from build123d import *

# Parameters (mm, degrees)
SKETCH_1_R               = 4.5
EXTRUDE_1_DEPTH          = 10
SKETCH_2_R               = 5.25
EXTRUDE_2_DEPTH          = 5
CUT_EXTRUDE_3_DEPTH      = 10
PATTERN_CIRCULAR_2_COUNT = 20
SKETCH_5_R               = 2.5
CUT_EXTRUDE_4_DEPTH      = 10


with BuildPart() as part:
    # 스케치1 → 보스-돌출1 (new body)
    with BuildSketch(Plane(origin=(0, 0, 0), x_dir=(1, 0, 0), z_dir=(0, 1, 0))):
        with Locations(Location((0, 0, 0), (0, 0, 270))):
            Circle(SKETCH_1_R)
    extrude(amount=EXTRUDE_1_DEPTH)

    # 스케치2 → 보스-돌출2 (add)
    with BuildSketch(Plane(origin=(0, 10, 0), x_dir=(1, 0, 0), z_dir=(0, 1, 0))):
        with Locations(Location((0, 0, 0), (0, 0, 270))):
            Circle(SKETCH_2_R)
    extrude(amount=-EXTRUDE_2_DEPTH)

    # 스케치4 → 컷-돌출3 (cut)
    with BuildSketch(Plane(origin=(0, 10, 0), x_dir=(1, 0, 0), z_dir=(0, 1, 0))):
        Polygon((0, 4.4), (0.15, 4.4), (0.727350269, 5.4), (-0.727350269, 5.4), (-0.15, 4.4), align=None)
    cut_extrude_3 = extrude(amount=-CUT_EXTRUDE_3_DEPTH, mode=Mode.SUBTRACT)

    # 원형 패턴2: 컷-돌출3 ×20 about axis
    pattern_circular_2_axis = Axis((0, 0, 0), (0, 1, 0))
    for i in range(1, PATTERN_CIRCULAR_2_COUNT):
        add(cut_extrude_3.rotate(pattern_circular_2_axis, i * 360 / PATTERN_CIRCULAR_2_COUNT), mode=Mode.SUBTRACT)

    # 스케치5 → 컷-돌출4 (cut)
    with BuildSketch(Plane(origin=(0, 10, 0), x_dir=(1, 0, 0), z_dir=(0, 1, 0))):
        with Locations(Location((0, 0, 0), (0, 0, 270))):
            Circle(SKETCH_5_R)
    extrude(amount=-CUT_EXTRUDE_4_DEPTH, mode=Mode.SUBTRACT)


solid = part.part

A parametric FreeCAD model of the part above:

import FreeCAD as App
import Part
import Sketcher

V = App.Vector
Q = App.Units.Quantity


def add_polygon(sketch, points):
    """Adds a closed chain of lines whose ends are joined by coincident constraints."""
    first, n = sketch.GeometryCount, len(points)
    for a, b in zip(points, points[1:] + points[:1]):
        sketch.addGeometry(Part.LineSegment(App.Vector(*a, 0), App.Vector(*b, 0)), False)
    for i in range(n):
        sketch.addConstraint(Sketcher.Constraint("Coincident", first + i, 2, first + (i + 1) % n, 1))

doc = App.newDocument("Part")
body = doc.addObject("PartDesign::Body", "Body")

sketch1 = body.newObject("Sketcher::SketchObject", "Sketch")
sketch1.AttachmentSupport = (doc.getObject("XZ_Plane"), [""])
sketch1.MapMode = "FlatFace"
sketch1.addGeometry(Part.Circle(V(0, 0, 0), V(0, 0, 1), 4.5), False)
sketch1.addConstraint([
    Sketcher.Constraint("Coincident", 0, 3, -1, 1),
    Sketcher.Constraint("Diameter", 0, 9.0),
])
pad1 = body.newObject("PartDesign::Pad", "Pad")
pad1.Profile = sketch1
pad1.Length = 10
pad1.Reversed = True

sketch2 = body.newObject("Sketcher::SketchObject", "Sketch001")
sketch2.AttachmentSupport = (doc.getObject("XZ_Plane"), [""])
sketch2.MapMode = "FlatFace"
sketch2.AttachmentOffset = App.Placement(V(0, 0, -10), App.Rotation())
sketch2.addGeometry(Part.Circle(V(0, 0, 0), V(0, 0, 1), 5.25), False)
sketch2.addConstraint([
    Sketcher.Constraint("Coincident", 0, 3, -1, 1),
    Sketcher.Constraint("Diameter", 0, 10.5),
])
pad2 = body.newObject("PartDesign::Pad", "Pad001")
pad2.Profile = sketch2
pad2.Length = 5

sketch3 = body.newObject("Sketcher::SketchObject", "Sketch002")
sketch3.AttachmentSupport = (doc.getObject("XZ_Plane"), [""])
sketch3.MapMode = "FlatFace"
sketch3.AttachmentOffset = App.Placement(V(0, 0, -10), App.Rotation())
add_polygon(sketch3, [(0.15, -4.4), (0.72735, -5.4), (-0.72735, -5.4), (-0.15, -4.4)])
sketch3.addConstraint([
    Sketcher.Constraint("Horizontal", 1),
    Sketcher.Constraint("Horizontal", 3),
    Sketcher.Constraint("Equal", 0, 2),
    Sketcher.Constraint("Angle", 0, Q("-60 deg")),
    Sketcher.Constraint("DistanceX", 3, 1, 3, 2, 0.3),
    Sketcher.Constraint("DistanceY", 1, 2, 2, 2, 1.0),
    Sketcher.Constraint("DistanceY", 0, 2, -1, 1, 5.4),
    Sketcher.Constraint("DistanceX", 2, 2, -1, 1, 0.15),
])
pocket1 = body.newObject("PartDesign::Pocket", "Pocket")
pocket1.Profile = sketch3
pocket1.Length = 10
pocket1.Reversed = True
doc.recompute()

polarpattern = body.newObject("PartDesign::PolarPattern", "PolarPattern")
polarpattern.Originals = [pocket1]
polarpattern.Axis = (doc.getObject("Y_Axis"), [""])
polarpattern.Angle = 360
polarpattern.Occurrences = 20
body.Tip = polarpattern

sketch4 = body.newObject("Sketcher::SketchObject", "Sketch003")
sketch4.AttachmentSupport = (doc.getObject("XZ_Plane"), [""])
sketch4.MapMode = "FlatFace"
sketch4.AttachmentOffset = App.Placement(V(0, 0, -10), App.Rotation())
sketch4.addGeometry(Part.Circle(V(0, 0, 0), V(0, 0, 1), 2.5), False)
sketch4.addConstraint([
    Sketcher.Constraint("Coincident", 0, 3, -1, 1),
    Sketcher.Constraint("Diameter", 0, 5.0),
])
pocket2 = body.newObject("PartDesign::Pocket", "Pocket001")
pocket2.Profile = sketch4
pocket2.Length = 10
pocket2.Reversed = True

doc.recompute()
